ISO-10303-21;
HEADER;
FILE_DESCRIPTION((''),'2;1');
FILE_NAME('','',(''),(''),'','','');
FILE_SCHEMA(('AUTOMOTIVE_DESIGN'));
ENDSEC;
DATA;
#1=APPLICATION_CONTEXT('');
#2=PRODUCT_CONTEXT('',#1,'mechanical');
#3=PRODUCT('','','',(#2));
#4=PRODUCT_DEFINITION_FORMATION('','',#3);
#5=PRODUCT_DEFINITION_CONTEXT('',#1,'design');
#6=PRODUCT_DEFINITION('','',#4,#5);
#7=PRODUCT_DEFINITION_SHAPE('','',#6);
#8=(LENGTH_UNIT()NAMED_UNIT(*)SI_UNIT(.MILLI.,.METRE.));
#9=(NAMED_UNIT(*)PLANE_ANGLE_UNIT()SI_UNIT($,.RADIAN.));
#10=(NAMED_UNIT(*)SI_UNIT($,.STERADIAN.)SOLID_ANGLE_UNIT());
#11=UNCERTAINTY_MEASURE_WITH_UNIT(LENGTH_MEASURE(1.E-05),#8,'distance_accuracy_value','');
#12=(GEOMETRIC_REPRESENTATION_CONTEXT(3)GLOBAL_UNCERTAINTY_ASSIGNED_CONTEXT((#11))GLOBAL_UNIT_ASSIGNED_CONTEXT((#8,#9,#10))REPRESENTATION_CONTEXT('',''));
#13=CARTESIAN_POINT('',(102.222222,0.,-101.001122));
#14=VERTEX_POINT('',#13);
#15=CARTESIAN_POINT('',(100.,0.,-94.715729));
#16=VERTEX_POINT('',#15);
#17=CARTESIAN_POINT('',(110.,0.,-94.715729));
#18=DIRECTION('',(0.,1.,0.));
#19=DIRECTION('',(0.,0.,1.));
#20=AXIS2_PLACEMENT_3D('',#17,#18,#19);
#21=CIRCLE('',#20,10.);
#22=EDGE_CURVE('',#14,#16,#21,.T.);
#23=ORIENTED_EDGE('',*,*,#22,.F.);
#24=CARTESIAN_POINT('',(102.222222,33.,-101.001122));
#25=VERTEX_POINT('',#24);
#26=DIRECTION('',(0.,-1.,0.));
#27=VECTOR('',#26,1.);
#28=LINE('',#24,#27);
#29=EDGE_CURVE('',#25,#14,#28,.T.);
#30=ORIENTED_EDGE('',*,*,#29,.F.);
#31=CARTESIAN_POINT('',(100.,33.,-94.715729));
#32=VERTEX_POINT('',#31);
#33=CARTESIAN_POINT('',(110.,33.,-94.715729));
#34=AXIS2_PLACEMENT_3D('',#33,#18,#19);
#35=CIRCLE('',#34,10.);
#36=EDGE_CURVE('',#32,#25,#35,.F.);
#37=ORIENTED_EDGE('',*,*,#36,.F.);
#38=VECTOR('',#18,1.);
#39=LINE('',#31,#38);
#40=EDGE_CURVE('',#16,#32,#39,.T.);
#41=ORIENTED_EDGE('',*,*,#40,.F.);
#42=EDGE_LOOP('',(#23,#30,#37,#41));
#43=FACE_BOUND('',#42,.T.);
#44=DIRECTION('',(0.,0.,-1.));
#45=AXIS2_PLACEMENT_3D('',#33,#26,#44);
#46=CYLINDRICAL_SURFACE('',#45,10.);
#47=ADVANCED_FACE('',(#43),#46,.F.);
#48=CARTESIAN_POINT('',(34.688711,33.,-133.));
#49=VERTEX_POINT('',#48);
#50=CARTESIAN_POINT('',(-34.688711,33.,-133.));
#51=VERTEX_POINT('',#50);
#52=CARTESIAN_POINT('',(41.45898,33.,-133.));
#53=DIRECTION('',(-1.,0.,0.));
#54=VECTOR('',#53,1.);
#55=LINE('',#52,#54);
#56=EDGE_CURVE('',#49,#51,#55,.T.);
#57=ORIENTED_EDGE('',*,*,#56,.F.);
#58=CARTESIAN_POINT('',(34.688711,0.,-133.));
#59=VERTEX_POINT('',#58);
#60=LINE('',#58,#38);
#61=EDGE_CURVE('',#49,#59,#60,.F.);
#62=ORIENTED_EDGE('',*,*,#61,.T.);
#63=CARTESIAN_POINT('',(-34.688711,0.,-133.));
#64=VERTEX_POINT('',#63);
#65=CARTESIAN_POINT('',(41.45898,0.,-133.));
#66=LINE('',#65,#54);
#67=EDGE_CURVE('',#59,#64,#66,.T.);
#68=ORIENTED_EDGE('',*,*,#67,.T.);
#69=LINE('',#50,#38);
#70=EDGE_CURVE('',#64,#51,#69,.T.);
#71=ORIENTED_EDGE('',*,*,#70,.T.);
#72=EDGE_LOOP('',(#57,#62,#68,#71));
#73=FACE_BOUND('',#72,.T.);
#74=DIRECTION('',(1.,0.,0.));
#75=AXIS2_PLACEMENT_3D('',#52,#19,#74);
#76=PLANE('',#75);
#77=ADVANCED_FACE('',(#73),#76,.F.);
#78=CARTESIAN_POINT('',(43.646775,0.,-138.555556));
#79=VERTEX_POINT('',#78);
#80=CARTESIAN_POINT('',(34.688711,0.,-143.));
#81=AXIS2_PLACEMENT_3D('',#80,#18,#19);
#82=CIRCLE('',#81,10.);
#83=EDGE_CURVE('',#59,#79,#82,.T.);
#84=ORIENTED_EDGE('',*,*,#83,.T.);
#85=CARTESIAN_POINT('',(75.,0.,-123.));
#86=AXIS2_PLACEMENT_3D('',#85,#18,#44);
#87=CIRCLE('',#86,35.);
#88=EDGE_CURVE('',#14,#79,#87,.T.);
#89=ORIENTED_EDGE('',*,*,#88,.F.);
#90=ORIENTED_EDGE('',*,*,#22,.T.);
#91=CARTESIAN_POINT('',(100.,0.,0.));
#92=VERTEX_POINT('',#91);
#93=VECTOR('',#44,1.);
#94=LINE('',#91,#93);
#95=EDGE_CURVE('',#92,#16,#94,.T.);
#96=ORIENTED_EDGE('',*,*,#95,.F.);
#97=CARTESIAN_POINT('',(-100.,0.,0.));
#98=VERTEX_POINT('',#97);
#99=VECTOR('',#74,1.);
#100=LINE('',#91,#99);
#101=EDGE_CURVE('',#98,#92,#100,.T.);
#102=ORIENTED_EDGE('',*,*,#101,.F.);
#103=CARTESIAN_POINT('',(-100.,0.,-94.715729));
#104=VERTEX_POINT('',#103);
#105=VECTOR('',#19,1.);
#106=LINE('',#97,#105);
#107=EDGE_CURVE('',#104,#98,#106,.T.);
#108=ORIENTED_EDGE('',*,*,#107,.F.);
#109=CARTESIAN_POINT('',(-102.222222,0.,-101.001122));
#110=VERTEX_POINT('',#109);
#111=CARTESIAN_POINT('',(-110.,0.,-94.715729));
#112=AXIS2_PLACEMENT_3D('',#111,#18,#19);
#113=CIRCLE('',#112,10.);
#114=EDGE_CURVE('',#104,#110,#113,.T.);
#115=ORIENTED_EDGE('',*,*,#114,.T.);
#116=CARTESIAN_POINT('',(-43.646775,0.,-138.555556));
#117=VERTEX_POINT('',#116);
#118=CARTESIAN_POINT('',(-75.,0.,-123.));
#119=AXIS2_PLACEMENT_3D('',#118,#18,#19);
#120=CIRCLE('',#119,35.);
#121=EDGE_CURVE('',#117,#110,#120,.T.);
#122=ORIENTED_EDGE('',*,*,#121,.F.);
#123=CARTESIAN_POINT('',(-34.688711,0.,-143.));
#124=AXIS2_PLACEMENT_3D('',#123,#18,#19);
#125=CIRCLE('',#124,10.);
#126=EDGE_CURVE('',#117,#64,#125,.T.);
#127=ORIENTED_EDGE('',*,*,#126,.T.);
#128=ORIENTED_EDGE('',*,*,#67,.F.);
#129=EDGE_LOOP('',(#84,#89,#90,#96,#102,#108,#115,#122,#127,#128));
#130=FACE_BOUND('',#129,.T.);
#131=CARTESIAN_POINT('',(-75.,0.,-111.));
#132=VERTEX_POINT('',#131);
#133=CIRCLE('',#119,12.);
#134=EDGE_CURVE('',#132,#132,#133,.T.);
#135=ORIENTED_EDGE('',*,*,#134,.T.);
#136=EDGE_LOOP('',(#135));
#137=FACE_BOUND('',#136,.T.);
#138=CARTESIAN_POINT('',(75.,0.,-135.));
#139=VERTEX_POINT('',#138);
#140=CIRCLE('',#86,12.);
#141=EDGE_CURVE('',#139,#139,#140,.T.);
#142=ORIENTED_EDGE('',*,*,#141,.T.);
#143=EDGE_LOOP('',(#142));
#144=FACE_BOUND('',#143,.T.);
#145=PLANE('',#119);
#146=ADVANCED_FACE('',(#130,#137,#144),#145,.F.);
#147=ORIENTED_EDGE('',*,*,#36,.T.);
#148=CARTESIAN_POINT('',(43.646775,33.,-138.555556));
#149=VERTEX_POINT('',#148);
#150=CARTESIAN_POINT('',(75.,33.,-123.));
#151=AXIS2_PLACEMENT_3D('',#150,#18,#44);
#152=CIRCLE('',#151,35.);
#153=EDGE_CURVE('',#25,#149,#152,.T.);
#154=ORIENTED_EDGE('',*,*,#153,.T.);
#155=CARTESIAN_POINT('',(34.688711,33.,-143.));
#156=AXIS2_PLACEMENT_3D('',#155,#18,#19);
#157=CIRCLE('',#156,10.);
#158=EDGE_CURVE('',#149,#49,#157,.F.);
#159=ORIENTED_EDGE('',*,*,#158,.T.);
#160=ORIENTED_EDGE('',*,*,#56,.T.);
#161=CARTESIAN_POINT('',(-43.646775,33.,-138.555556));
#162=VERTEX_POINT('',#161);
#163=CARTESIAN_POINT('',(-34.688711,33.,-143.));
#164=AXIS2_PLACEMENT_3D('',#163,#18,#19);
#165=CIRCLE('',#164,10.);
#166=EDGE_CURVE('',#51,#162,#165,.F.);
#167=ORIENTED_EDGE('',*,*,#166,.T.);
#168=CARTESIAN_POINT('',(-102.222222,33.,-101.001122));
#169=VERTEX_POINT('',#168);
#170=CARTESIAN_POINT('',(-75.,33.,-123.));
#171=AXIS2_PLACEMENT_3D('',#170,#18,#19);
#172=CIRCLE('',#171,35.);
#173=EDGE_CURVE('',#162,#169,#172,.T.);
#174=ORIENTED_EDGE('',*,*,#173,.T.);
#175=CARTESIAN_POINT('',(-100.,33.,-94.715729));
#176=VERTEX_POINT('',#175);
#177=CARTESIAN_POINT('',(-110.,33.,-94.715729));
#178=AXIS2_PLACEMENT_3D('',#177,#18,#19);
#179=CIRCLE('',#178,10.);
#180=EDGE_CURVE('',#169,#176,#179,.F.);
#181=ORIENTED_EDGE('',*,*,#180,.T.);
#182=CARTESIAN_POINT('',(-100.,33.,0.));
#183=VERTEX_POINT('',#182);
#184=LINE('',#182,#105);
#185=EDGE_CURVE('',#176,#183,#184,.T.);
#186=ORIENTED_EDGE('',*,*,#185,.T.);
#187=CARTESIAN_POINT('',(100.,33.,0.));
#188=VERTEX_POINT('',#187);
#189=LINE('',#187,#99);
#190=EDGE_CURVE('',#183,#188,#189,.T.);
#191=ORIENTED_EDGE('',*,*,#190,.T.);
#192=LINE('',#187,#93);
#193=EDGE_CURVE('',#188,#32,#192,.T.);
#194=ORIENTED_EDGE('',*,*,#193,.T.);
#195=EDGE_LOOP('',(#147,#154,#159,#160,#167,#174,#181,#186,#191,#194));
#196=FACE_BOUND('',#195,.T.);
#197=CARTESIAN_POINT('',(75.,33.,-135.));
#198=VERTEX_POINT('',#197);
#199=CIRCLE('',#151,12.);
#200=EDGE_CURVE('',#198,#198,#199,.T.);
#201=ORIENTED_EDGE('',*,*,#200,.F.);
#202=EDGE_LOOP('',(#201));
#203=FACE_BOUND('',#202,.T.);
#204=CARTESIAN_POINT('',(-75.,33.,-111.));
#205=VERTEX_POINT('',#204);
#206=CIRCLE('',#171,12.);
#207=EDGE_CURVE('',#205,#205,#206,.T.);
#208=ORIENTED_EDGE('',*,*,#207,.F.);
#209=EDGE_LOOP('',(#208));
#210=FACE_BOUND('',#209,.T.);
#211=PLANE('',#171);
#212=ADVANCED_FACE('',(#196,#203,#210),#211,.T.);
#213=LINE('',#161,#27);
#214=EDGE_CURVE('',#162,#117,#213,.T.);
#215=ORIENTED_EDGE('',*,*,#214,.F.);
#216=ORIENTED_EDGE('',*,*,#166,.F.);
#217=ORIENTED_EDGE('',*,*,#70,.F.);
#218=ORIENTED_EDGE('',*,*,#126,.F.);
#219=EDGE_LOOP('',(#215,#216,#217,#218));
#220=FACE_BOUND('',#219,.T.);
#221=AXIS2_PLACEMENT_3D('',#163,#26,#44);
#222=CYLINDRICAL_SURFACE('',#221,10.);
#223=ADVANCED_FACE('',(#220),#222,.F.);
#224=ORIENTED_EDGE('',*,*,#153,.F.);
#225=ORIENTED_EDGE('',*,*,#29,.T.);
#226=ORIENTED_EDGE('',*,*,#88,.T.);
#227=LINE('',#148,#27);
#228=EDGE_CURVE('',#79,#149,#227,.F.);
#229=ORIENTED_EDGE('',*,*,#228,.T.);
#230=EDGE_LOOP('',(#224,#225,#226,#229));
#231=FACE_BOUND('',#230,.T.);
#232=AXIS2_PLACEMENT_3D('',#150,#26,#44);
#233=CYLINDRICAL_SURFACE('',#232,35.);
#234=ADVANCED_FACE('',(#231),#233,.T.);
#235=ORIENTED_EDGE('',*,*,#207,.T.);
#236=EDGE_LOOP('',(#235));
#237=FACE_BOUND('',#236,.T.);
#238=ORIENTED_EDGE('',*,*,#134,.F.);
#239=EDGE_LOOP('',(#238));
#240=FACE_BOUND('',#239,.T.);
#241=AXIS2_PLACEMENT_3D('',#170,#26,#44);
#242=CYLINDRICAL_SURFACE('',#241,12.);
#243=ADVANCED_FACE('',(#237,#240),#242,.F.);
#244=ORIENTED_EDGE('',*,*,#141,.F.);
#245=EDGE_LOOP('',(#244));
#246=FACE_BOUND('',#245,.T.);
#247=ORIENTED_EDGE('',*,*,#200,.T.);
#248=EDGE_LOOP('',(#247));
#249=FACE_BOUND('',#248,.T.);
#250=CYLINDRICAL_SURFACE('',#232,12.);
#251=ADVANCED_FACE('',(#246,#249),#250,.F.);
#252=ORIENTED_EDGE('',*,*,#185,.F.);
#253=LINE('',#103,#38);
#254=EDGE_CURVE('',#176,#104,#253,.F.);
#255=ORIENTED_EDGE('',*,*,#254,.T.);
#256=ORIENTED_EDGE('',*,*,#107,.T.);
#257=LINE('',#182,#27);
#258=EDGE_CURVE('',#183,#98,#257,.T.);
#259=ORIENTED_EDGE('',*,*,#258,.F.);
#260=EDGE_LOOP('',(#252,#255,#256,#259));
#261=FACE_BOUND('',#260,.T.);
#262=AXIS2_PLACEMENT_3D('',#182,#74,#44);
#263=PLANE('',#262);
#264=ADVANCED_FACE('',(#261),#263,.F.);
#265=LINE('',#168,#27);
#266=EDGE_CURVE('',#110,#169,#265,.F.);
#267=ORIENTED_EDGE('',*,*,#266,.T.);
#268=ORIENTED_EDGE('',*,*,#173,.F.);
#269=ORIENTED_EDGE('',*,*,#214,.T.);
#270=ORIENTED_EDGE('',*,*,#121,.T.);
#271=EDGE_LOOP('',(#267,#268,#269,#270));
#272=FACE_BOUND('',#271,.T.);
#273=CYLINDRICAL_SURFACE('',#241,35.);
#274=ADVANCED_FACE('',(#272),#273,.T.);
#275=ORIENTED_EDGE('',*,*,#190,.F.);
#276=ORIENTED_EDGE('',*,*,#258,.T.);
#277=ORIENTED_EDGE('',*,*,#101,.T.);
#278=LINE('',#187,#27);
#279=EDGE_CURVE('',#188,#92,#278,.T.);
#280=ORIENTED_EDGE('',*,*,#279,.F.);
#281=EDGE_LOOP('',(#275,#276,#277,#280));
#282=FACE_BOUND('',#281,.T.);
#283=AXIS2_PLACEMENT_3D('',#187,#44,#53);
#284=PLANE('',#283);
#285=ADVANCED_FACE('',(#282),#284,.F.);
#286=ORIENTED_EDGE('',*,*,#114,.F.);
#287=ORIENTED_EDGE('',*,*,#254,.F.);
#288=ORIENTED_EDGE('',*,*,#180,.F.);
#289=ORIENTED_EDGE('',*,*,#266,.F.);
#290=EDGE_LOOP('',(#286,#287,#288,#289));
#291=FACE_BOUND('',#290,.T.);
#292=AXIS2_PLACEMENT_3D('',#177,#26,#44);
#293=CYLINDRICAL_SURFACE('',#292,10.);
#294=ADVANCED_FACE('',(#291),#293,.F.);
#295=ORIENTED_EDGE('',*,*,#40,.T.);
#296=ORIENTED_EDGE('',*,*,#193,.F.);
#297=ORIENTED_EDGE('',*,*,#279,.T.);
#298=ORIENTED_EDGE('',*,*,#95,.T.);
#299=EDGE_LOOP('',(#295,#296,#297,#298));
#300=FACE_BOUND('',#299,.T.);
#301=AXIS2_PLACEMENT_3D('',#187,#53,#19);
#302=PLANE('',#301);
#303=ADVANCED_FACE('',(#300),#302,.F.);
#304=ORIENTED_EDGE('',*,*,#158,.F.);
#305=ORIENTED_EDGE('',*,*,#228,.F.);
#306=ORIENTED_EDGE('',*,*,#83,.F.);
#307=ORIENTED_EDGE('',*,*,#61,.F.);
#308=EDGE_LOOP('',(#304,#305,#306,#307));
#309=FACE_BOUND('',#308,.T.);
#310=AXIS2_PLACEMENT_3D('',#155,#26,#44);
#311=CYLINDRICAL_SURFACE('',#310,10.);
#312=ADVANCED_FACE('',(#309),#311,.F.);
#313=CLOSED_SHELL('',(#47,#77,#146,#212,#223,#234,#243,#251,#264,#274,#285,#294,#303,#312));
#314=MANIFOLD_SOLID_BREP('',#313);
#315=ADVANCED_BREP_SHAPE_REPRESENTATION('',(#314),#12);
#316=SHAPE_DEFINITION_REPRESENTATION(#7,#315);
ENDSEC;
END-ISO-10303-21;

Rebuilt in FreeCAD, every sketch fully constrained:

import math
import FreeCAD as App
import Part
import Sketcher

V = App.Vector


def edges_at(feature, points):
    """Names of the edges that pass closest to the given points."""
    edges = feature.Shape.Edges
    near = lambda p: min(range(len(edges)), key=lambda i: edges[i].distToShape(Part.Vertex(*p))[0])
    return sorted({f"Edge{near(p) + 1}" for p in points})

doc = App.newDocument("Part")
body = doc.addObject("PartDesign::Body", "Body")

# Sketch on XZ plane
sketch1 = body.newObject("Sketcher::SketchObject", "Sketch")
sketch1.AttachmentSupport = (doc.getObject("XZ_Plane"), [""])
sketch1.MapMode = "FlatFace"
sketch1.addGeometry([
    Part.LineSegment(V(-100, 0, 0), V(100, 0, 0)),  # 0
    Part.LineSegment(V(100, 0, 0), V(100, -99, 0)),  # 1
    Part.ArcOfCircle(Part.Circle(V(75, -123, 0), V(0, 0, 1), 35), math.radians(-163), math.radians(44)),  # 2
    Part.LineSegment(V(41, -133, 0), V(-41, -133, 0)),  # 3
    Part.ArcOfCircle(Part.Circle(V(-75, -123, 0), V(0, 0, 1), 35), math.radians(136), math.radians(343)),  # 4
    Part.LineSegment(V(-100, -99, 0), V(-100, 0, 0)),  # 5
    Part.Circle(V(75, -123, 0), V(0, 0, 1), 12),  # 6
    Part.Circle(V(-75, -123, 0), V(0, 0, 1), 12),  # 7
], False)
sketch1.addConstraint([
    Sketcher.Constraint("Coincident", 0, 2, 1, 1),
    Sketcher.Constraint("Coincident", 1, 2, 2, 2),
    Sketcher.Constraint("Coincident", 2, 1, 3, 1),
    Sketcher.Constraint("Coincident", 3, 2, 4, 2),
    Sketcher.Constraint("Coincident", 4, 1, 5, 1),
    Sketcher.Constraint("Coincident", 5, 2, 0, 1),
    Sketcher.Constraint("Horizontal", 0),
    Sketcher.Constraint("Vertical", 1),
    Sketcher.Constraint("Horizontal", 3),
    Sketcher.Constraint("Vertical", 5),
    Sketcher.Constraint("Coincident", 6, 3, 2, 3),
    Sketcher.Constraint("Coincident", 7, 3, 4, 3),
    Sketcher.Constraint("Equal", 2, 4),
    Sketcher.Constraint("Equal", 6, 7),
    Sketcher.Constraint("Symmetric", 0, 2, 5, 2, -1, 1),
    Sketcher.Constraint("Symmetric", 2, 3, 4, 3, -2),
    Sketcher.Constraint("Diameter", 6, 24.0),
    Sketcher.Constraint("Radius", 2, 35.0),
    Sketcher.Constraint("DistanceX", 0, 1, 0, 2, 200.0),
    Sketcher.Constraint("DistanceX", -1, 1, 2, 3, 75.0),
    Sketcher.Constraint("DistanceY", 2, 3, -1, 1, 123.0),
    Sketcher.Constraint("DistanceY", 2, 1, -1, 1, 133.0),
])
pad1 = body.newObject("PartDesign::Pad", "Pad")
pad1.Profile = sketch1
pad1.Length = 33
pad1.Reversed = True
doc.recompute()

fillet = body.newObject("PartDesign::Fillet", "Fillet")
fillet.Base = (pad1, edges_at(pad1, [
    (-100, 16.5, -98.505),
    (-41.459, 16.5, -133),
    (41.459, 16.5, -133),
    (100, 16.5, -98.505),
]))
fillet.Radius = 10

doc.recompute()
